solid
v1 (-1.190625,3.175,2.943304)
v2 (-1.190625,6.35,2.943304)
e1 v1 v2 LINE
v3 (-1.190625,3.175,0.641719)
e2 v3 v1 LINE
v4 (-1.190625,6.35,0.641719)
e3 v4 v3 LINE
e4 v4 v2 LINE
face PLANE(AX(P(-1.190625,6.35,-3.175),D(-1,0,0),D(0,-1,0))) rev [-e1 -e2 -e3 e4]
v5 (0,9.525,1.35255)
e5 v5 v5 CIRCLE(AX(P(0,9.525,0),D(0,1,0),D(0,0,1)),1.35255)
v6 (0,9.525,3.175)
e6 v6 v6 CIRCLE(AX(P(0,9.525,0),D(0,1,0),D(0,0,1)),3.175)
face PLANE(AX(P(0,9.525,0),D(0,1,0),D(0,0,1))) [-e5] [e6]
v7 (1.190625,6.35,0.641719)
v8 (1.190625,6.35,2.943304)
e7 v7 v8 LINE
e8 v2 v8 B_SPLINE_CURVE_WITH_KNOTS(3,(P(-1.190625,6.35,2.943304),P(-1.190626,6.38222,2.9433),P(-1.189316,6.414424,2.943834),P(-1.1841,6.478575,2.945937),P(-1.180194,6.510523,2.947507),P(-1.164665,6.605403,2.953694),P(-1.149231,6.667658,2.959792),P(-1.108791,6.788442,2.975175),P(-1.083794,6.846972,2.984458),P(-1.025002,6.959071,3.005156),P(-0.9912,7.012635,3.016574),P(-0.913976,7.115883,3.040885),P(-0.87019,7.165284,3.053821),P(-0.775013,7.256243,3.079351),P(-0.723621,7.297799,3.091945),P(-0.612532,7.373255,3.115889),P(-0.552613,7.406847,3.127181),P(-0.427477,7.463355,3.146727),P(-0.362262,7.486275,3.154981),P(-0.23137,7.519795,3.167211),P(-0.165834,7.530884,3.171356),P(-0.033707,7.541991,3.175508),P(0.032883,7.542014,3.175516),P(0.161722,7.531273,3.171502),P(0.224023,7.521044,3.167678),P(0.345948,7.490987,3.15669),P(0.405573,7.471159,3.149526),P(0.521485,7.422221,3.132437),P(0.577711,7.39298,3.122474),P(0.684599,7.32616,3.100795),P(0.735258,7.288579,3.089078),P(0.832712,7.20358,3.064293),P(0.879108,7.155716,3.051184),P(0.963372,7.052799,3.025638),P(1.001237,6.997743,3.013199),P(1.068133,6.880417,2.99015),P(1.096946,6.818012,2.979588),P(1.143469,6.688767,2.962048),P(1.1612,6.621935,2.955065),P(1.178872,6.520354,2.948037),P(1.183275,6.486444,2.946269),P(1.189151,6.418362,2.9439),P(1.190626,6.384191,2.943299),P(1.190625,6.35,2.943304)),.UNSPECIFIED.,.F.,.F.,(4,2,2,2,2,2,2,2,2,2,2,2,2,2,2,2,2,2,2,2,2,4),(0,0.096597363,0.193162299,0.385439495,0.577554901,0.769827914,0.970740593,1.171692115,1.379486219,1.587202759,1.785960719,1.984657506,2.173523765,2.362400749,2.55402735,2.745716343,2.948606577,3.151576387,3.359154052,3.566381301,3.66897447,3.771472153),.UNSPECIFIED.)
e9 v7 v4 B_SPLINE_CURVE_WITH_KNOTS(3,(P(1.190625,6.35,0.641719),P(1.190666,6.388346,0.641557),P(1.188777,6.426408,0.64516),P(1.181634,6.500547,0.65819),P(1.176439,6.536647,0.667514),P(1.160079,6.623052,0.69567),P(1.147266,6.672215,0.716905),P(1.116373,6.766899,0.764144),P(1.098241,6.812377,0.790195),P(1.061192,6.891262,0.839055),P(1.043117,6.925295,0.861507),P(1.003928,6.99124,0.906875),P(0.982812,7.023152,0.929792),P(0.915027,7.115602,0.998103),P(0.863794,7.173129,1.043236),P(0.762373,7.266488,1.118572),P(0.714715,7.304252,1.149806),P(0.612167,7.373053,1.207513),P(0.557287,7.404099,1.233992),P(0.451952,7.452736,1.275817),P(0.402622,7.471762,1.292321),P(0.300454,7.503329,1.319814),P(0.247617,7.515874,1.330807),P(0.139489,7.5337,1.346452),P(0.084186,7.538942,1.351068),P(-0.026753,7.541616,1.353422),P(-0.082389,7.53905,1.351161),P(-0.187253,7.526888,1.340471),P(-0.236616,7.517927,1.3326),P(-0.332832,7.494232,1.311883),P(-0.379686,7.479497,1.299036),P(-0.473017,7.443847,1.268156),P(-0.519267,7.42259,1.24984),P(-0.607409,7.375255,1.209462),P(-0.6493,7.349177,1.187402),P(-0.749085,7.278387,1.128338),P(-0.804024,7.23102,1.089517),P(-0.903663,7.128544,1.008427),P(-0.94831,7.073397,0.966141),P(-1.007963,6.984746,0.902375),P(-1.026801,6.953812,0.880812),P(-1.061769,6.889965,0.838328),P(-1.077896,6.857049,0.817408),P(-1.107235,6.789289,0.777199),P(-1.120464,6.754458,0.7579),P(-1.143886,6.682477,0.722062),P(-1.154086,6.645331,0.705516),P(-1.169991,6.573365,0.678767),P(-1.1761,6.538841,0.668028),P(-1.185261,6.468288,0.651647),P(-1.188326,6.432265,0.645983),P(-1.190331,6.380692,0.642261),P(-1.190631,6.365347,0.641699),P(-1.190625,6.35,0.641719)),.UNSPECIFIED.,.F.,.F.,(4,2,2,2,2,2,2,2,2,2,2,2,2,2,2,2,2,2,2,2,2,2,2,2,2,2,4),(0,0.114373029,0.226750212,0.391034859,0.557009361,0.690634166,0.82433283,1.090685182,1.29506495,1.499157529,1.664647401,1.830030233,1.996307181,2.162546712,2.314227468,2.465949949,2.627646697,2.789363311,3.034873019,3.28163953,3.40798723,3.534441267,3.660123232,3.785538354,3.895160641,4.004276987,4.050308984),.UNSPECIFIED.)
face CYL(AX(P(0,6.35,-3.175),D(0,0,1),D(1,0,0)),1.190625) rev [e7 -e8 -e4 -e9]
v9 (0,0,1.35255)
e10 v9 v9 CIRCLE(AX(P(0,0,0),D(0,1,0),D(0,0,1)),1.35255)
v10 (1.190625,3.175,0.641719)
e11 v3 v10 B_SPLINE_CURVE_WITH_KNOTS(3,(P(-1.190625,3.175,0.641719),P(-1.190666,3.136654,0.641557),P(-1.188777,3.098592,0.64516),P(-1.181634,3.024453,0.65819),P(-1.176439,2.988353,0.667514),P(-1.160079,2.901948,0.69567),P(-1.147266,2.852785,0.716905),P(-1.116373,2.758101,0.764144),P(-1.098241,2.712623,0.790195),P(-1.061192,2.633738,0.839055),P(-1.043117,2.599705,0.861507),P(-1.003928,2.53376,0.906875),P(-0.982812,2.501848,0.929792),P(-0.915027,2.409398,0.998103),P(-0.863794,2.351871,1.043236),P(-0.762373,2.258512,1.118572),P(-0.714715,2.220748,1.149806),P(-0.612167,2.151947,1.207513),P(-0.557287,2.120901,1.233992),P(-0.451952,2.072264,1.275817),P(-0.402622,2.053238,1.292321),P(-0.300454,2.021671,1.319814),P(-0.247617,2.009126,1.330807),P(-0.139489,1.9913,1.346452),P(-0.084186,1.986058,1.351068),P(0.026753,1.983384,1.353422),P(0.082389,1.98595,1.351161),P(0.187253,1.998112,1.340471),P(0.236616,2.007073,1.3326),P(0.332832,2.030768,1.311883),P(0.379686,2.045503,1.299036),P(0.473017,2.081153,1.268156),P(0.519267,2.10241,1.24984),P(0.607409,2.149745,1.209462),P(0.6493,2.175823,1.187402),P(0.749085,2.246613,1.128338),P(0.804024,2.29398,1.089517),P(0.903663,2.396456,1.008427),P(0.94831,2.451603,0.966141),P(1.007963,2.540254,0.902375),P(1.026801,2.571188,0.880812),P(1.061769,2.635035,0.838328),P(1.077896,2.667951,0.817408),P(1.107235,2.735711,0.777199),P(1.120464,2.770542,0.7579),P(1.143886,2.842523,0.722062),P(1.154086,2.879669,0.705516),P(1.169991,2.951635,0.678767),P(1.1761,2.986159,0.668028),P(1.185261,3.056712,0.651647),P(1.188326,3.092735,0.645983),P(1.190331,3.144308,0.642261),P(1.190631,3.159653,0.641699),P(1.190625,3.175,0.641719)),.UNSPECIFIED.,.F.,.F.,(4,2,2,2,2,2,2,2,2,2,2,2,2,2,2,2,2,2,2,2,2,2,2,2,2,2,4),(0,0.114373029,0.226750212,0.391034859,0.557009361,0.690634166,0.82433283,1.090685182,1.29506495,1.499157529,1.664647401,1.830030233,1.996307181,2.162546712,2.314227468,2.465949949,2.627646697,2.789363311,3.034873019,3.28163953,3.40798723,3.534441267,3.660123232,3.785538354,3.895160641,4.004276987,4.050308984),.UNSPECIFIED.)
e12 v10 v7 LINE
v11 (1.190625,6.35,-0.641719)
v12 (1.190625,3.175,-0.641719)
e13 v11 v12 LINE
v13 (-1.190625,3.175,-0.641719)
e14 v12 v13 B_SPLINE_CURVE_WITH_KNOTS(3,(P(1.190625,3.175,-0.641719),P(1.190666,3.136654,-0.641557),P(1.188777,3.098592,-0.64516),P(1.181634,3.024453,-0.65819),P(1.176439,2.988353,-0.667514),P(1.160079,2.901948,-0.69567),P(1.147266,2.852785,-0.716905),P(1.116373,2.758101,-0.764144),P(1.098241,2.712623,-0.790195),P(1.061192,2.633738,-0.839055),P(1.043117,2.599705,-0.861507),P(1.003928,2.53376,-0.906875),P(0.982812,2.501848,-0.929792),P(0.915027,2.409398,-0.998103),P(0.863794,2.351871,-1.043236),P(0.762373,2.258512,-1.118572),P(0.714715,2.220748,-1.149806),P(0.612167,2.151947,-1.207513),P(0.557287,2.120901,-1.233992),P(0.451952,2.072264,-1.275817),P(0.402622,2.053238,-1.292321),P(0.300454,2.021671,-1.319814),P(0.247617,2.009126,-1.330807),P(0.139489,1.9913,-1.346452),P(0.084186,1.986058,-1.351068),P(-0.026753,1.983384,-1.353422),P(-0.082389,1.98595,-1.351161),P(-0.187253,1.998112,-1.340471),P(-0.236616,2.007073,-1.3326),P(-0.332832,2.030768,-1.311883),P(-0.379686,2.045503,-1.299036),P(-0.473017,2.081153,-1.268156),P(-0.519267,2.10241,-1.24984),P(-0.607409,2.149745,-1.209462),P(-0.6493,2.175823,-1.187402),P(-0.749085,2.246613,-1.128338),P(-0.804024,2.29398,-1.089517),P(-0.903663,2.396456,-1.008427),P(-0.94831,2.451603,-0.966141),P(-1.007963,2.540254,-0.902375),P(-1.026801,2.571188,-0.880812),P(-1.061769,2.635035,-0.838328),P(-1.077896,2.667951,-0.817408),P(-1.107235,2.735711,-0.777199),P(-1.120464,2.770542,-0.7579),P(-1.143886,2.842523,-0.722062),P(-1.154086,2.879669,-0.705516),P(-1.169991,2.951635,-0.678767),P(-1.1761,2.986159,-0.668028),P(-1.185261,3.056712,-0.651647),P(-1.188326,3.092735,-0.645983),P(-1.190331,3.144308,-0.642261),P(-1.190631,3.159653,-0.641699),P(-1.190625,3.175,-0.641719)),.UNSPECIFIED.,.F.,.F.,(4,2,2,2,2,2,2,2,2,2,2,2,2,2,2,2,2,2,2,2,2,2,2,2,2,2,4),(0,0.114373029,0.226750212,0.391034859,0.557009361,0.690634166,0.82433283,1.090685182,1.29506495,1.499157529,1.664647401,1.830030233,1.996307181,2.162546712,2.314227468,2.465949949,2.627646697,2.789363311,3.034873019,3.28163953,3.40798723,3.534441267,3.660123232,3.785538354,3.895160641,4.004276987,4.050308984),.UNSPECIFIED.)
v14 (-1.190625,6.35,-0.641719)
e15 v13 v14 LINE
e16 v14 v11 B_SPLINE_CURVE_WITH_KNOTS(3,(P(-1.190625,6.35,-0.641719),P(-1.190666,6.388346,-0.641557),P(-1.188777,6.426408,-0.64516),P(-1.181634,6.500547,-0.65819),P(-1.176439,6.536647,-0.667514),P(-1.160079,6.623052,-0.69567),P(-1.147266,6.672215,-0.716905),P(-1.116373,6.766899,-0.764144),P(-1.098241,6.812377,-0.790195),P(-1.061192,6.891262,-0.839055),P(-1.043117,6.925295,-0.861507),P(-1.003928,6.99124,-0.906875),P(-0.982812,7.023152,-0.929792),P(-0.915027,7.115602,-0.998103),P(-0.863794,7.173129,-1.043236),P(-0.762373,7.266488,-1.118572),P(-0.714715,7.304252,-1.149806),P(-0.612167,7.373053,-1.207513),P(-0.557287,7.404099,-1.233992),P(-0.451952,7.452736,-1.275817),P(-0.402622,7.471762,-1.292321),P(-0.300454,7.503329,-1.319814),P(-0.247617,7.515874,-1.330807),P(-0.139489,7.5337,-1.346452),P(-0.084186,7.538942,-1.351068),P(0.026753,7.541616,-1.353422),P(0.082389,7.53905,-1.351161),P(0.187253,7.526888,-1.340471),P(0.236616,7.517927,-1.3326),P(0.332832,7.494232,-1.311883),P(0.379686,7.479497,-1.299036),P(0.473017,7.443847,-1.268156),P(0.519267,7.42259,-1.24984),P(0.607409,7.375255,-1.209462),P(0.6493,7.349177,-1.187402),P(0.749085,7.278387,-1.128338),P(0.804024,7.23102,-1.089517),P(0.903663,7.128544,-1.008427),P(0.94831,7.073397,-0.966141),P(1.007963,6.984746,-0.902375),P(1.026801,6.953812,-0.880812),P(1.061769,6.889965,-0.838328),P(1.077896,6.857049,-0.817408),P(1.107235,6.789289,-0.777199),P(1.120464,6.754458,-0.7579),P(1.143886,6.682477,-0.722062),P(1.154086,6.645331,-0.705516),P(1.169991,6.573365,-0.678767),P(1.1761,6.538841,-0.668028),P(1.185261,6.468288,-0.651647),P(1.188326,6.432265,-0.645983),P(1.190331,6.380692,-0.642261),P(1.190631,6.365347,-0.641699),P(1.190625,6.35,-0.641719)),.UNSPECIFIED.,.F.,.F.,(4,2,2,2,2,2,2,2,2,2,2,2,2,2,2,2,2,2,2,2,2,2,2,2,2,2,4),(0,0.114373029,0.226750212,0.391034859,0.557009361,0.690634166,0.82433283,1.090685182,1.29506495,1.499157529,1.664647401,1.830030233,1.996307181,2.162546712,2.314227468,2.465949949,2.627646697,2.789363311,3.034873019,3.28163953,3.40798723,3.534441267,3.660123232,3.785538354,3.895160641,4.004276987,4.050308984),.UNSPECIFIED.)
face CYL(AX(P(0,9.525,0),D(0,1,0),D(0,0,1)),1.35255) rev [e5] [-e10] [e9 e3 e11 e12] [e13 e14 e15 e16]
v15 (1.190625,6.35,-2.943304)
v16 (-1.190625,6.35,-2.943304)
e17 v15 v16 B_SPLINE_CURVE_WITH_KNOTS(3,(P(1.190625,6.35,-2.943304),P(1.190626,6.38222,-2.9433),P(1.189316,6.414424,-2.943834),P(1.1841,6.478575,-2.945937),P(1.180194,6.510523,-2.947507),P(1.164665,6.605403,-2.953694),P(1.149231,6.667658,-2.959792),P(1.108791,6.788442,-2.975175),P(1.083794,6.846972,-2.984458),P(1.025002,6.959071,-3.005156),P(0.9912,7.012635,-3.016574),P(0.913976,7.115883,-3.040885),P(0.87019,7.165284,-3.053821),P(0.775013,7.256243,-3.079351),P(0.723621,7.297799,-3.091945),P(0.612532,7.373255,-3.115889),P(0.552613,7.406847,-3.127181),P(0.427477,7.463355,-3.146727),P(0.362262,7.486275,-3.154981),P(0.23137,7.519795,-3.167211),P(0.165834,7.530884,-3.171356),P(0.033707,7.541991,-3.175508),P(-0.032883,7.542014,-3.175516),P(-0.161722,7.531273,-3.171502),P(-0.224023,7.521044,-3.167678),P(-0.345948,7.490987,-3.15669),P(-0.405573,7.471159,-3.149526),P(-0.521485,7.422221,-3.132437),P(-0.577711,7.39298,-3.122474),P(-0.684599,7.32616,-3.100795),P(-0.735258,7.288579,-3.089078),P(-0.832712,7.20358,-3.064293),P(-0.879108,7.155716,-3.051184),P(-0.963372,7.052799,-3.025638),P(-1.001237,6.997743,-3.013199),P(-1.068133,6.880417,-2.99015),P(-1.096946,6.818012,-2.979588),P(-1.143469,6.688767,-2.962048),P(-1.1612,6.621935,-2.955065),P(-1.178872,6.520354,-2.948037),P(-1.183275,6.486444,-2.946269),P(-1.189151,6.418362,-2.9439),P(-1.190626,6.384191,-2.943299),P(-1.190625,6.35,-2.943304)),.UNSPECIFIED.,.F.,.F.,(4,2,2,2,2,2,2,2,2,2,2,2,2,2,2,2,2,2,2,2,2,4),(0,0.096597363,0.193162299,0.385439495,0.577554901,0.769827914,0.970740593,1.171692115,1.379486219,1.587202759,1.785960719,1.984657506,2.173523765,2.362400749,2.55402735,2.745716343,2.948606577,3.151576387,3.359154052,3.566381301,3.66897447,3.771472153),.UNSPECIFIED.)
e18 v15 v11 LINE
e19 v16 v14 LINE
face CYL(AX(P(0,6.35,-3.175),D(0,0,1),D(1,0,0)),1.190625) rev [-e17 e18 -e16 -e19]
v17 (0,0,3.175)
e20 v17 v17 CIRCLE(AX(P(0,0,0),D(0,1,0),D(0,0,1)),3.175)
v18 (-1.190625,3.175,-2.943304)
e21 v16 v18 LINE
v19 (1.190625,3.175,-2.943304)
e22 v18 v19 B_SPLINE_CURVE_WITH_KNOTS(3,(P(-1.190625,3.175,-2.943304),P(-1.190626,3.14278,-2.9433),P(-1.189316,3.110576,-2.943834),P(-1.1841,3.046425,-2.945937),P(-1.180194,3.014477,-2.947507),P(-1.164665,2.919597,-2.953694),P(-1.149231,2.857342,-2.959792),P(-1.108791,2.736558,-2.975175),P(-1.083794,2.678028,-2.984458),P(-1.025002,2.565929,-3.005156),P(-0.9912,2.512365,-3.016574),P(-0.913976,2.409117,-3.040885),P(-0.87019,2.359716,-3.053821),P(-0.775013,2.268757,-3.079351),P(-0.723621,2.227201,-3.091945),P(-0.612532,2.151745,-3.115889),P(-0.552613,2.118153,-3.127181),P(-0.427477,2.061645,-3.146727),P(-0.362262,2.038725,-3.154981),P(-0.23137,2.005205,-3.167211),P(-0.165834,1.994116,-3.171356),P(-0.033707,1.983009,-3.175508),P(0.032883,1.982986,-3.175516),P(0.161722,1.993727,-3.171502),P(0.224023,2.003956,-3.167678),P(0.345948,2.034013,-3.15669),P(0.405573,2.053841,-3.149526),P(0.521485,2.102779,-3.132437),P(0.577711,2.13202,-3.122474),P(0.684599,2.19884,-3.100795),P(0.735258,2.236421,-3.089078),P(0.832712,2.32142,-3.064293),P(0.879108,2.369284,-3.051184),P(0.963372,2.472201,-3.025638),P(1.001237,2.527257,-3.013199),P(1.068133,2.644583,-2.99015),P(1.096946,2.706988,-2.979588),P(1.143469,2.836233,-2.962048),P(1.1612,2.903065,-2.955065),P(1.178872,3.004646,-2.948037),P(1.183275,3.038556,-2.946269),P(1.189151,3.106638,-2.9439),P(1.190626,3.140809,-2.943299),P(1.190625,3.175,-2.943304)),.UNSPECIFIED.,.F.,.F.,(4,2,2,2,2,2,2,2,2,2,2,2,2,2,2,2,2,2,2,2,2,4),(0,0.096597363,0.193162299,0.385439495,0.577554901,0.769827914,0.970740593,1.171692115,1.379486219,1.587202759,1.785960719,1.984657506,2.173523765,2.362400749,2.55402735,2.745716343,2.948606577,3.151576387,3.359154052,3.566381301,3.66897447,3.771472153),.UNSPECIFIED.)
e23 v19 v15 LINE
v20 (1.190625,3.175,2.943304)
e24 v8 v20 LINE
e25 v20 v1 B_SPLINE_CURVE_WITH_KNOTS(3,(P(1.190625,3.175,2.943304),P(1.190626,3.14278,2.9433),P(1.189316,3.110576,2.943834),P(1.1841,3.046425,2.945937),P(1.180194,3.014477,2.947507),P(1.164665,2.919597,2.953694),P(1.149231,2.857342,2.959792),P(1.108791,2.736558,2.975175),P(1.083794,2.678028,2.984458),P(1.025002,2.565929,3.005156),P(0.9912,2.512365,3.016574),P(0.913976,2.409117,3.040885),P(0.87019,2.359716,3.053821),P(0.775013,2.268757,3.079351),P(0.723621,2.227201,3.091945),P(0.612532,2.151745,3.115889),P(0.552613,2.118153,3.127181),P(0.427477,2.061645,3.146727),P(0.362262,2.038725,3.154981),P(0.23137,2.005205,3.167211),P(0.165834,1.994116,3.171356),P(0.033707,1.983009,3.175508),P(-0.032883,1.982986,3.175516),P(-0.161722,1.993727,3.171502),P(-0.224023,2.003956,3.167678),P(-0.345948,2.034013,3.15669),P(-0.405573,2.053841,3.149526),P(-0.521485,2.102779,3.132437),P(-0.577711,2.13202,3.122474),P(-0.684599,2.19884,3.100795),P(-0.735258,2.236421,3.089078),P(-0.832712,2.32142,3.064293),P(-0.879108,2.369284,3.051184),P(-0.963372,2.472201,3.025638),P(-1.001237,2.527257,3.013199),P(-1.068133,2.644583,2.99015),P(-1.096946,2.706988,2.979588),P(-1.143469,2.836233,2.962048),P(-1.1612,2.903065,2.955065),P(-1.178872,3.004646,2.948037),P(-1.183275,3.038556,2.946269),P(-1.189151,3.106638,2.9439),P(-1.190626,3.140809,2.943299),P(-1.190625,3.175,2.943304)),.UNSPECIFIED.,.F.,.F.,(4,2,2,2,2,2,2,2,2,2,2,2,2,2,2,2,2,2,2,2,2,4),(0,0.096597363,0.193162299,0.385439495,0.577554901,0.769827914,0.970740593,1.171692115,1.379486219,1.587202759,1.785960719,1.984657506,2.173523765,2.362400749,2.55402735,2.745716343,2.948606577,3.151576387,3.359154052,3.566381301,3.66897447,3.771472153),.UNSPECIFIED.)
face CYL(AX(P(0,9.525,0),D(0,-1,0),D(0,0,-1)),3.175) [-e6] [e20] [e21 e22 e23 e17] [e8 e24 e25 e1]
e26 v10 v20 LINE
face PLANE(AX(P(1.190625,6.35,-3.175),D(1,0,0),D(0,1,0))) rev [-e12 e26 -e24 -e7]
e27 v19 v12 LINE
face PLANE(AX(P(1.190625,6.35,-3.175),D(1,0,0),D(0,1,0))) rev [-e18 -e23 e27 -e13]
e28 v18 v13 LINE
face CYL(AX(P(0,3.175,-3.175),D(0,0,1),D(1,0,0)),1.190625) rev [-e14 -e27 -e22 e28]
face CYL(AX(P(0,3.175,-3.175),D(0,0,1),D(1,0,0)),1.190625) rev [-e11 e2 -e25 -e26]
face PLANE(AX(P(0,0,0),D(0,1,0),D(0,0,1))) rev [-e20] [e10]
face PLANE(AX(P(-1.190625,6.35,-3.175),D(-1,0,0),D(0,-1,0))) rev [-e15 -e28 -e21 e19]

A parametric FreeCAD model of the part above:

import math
import FreeCAD as App
import Part
import Sketcher

V = App.Vector
Q = App.Units.Quantity

doc = App.newDocument("Part")
body = doc.addObject("PartDesign::Body", "Body")

# Sketch on XZ plane
sketch1 = body.newObject("Sketcher::SketchObject", "Sketch")
sketch1.AttachmentSupport = (doc.getObject("XZ_Plane"), [""])
sketch1.MapMode = "FlatFace"
sketch1.addGeometry(Part.Circle(V(0, 0, 0), V(0, 0, 1), 3.2), False)
sketch1.addConstraint(Sketcher.Constraint("Coincident", 0, 3, -1, 1))
sketch1.addConstraint(Sketcher.Constraint("Diameter", 0, Q("0.25 in")))
pad1 = body.newObject("PartDesign::Pad", "Pad")
pad1.Profile = sketch1
pad1.Length = Q("0.375 in")
pad1.Reversed = True

# Sketch on XZ plane
sketch2 = body.newObject("Sketcher::SketchObject", "Sketch001")
sketch2.AttachmentSupport = (doc.getObject("XZ_Plane"), [""])
sketch2.MapMode = "FlatFace"
sketch2.AttachmentOffset = App.Placement(V(0, 0, -0.375 * 25.4), App.Rotation())
sketch2.addGeometry(Part.Circle(V(0, 0, 0), V(0, 0, 1), 1.4), False)
sketch2.addConstraint(Sketcher.Constraint("Coincident", 0, 3, -1, 1))
sketch2.addConstraint(Sketcher.Constraint("Diameter", 0, Q("0.1065 in")))
doc.recompute()
hole = body.newObject("PartDesign::Hole", "Hole")
hole.Profile = sketch2
hole.ThreadType = "None"
hole.Diameter = Q("0.1065 in")
hole.DepthType = "ThroughAll"
hole.Reversed = True

# Sketch on XY plane
sketch3 = body.newObject("Sketcher::SketchObject", "Sketch002")
sketch3.AttachmentSupport = (doc.getObject("XY_Plane"), [""])
sketch3.MapMode = "FlatFace"
sketch3.addGeometry(Part.LineSegment(V(1.2, 3.2, 0), V(1.2, 6.3, 0)), False)
sketch3.addGeometry(Part.ArcOfCircle(Part.Circle(V(0, 6.3, 0), V(0, 0, 1), 1.2), math.radians(0), math.radians(180)), False)
sketch3.addGeometry(Part.LineSegment(V(-1.2, 6.3, 0), V(-1.2, 3.2, 0)), False)
sketch3.addGeometry(Part.ArcOfCircle(Part.Circle(V(0, 3.2, 0), V(0, 0, 1), 1.2), math.radians(180), math.radians(360)), False)
sketch3.addConstraint(Sketcher.Constraint("Tangent", 0, 2, 1, 1))
sketch3.addConstraint(Sketcher.Constraint("Tangent", 1, 2, 2, 1))
sketch3.addConstraint(Sketcher.Constraint("Tangent", 2, 2, 3, 1))
sketch3.addConstraint(Sketcher.Constraint("Tangent", 3, 2, 0, 1))
sketch3.addConstraint(Sketcher.Constraint("Vertical", 0))
sketch3.addConstraint(Sketcher.Constraint("Vertical", 2))
sketch3.addConstraint(Sketcher.Constraint("PointOnObject", 1, 3, -2))
sketch3.addConstraint(Sketcher.Constraint("Radius", 1, Q("0.046875 in")))
sketch3.addConstraint(Sketcher.Constraint("DistanceY", 0, 1, 0, 2, Q("0.125 in")))
sketch3.addConstraint(Sketcher.Constraint("DistanceY", -1, 1, 1, 3, Q("0.25 in")))
pocket1 = body.newObject("PartDesign::Pocket", "Pocket")
pocket1.Profile = sketch3
pocket1.Type = "ThroughAll"
pocket1.Midplane = True

doc.recompute()
